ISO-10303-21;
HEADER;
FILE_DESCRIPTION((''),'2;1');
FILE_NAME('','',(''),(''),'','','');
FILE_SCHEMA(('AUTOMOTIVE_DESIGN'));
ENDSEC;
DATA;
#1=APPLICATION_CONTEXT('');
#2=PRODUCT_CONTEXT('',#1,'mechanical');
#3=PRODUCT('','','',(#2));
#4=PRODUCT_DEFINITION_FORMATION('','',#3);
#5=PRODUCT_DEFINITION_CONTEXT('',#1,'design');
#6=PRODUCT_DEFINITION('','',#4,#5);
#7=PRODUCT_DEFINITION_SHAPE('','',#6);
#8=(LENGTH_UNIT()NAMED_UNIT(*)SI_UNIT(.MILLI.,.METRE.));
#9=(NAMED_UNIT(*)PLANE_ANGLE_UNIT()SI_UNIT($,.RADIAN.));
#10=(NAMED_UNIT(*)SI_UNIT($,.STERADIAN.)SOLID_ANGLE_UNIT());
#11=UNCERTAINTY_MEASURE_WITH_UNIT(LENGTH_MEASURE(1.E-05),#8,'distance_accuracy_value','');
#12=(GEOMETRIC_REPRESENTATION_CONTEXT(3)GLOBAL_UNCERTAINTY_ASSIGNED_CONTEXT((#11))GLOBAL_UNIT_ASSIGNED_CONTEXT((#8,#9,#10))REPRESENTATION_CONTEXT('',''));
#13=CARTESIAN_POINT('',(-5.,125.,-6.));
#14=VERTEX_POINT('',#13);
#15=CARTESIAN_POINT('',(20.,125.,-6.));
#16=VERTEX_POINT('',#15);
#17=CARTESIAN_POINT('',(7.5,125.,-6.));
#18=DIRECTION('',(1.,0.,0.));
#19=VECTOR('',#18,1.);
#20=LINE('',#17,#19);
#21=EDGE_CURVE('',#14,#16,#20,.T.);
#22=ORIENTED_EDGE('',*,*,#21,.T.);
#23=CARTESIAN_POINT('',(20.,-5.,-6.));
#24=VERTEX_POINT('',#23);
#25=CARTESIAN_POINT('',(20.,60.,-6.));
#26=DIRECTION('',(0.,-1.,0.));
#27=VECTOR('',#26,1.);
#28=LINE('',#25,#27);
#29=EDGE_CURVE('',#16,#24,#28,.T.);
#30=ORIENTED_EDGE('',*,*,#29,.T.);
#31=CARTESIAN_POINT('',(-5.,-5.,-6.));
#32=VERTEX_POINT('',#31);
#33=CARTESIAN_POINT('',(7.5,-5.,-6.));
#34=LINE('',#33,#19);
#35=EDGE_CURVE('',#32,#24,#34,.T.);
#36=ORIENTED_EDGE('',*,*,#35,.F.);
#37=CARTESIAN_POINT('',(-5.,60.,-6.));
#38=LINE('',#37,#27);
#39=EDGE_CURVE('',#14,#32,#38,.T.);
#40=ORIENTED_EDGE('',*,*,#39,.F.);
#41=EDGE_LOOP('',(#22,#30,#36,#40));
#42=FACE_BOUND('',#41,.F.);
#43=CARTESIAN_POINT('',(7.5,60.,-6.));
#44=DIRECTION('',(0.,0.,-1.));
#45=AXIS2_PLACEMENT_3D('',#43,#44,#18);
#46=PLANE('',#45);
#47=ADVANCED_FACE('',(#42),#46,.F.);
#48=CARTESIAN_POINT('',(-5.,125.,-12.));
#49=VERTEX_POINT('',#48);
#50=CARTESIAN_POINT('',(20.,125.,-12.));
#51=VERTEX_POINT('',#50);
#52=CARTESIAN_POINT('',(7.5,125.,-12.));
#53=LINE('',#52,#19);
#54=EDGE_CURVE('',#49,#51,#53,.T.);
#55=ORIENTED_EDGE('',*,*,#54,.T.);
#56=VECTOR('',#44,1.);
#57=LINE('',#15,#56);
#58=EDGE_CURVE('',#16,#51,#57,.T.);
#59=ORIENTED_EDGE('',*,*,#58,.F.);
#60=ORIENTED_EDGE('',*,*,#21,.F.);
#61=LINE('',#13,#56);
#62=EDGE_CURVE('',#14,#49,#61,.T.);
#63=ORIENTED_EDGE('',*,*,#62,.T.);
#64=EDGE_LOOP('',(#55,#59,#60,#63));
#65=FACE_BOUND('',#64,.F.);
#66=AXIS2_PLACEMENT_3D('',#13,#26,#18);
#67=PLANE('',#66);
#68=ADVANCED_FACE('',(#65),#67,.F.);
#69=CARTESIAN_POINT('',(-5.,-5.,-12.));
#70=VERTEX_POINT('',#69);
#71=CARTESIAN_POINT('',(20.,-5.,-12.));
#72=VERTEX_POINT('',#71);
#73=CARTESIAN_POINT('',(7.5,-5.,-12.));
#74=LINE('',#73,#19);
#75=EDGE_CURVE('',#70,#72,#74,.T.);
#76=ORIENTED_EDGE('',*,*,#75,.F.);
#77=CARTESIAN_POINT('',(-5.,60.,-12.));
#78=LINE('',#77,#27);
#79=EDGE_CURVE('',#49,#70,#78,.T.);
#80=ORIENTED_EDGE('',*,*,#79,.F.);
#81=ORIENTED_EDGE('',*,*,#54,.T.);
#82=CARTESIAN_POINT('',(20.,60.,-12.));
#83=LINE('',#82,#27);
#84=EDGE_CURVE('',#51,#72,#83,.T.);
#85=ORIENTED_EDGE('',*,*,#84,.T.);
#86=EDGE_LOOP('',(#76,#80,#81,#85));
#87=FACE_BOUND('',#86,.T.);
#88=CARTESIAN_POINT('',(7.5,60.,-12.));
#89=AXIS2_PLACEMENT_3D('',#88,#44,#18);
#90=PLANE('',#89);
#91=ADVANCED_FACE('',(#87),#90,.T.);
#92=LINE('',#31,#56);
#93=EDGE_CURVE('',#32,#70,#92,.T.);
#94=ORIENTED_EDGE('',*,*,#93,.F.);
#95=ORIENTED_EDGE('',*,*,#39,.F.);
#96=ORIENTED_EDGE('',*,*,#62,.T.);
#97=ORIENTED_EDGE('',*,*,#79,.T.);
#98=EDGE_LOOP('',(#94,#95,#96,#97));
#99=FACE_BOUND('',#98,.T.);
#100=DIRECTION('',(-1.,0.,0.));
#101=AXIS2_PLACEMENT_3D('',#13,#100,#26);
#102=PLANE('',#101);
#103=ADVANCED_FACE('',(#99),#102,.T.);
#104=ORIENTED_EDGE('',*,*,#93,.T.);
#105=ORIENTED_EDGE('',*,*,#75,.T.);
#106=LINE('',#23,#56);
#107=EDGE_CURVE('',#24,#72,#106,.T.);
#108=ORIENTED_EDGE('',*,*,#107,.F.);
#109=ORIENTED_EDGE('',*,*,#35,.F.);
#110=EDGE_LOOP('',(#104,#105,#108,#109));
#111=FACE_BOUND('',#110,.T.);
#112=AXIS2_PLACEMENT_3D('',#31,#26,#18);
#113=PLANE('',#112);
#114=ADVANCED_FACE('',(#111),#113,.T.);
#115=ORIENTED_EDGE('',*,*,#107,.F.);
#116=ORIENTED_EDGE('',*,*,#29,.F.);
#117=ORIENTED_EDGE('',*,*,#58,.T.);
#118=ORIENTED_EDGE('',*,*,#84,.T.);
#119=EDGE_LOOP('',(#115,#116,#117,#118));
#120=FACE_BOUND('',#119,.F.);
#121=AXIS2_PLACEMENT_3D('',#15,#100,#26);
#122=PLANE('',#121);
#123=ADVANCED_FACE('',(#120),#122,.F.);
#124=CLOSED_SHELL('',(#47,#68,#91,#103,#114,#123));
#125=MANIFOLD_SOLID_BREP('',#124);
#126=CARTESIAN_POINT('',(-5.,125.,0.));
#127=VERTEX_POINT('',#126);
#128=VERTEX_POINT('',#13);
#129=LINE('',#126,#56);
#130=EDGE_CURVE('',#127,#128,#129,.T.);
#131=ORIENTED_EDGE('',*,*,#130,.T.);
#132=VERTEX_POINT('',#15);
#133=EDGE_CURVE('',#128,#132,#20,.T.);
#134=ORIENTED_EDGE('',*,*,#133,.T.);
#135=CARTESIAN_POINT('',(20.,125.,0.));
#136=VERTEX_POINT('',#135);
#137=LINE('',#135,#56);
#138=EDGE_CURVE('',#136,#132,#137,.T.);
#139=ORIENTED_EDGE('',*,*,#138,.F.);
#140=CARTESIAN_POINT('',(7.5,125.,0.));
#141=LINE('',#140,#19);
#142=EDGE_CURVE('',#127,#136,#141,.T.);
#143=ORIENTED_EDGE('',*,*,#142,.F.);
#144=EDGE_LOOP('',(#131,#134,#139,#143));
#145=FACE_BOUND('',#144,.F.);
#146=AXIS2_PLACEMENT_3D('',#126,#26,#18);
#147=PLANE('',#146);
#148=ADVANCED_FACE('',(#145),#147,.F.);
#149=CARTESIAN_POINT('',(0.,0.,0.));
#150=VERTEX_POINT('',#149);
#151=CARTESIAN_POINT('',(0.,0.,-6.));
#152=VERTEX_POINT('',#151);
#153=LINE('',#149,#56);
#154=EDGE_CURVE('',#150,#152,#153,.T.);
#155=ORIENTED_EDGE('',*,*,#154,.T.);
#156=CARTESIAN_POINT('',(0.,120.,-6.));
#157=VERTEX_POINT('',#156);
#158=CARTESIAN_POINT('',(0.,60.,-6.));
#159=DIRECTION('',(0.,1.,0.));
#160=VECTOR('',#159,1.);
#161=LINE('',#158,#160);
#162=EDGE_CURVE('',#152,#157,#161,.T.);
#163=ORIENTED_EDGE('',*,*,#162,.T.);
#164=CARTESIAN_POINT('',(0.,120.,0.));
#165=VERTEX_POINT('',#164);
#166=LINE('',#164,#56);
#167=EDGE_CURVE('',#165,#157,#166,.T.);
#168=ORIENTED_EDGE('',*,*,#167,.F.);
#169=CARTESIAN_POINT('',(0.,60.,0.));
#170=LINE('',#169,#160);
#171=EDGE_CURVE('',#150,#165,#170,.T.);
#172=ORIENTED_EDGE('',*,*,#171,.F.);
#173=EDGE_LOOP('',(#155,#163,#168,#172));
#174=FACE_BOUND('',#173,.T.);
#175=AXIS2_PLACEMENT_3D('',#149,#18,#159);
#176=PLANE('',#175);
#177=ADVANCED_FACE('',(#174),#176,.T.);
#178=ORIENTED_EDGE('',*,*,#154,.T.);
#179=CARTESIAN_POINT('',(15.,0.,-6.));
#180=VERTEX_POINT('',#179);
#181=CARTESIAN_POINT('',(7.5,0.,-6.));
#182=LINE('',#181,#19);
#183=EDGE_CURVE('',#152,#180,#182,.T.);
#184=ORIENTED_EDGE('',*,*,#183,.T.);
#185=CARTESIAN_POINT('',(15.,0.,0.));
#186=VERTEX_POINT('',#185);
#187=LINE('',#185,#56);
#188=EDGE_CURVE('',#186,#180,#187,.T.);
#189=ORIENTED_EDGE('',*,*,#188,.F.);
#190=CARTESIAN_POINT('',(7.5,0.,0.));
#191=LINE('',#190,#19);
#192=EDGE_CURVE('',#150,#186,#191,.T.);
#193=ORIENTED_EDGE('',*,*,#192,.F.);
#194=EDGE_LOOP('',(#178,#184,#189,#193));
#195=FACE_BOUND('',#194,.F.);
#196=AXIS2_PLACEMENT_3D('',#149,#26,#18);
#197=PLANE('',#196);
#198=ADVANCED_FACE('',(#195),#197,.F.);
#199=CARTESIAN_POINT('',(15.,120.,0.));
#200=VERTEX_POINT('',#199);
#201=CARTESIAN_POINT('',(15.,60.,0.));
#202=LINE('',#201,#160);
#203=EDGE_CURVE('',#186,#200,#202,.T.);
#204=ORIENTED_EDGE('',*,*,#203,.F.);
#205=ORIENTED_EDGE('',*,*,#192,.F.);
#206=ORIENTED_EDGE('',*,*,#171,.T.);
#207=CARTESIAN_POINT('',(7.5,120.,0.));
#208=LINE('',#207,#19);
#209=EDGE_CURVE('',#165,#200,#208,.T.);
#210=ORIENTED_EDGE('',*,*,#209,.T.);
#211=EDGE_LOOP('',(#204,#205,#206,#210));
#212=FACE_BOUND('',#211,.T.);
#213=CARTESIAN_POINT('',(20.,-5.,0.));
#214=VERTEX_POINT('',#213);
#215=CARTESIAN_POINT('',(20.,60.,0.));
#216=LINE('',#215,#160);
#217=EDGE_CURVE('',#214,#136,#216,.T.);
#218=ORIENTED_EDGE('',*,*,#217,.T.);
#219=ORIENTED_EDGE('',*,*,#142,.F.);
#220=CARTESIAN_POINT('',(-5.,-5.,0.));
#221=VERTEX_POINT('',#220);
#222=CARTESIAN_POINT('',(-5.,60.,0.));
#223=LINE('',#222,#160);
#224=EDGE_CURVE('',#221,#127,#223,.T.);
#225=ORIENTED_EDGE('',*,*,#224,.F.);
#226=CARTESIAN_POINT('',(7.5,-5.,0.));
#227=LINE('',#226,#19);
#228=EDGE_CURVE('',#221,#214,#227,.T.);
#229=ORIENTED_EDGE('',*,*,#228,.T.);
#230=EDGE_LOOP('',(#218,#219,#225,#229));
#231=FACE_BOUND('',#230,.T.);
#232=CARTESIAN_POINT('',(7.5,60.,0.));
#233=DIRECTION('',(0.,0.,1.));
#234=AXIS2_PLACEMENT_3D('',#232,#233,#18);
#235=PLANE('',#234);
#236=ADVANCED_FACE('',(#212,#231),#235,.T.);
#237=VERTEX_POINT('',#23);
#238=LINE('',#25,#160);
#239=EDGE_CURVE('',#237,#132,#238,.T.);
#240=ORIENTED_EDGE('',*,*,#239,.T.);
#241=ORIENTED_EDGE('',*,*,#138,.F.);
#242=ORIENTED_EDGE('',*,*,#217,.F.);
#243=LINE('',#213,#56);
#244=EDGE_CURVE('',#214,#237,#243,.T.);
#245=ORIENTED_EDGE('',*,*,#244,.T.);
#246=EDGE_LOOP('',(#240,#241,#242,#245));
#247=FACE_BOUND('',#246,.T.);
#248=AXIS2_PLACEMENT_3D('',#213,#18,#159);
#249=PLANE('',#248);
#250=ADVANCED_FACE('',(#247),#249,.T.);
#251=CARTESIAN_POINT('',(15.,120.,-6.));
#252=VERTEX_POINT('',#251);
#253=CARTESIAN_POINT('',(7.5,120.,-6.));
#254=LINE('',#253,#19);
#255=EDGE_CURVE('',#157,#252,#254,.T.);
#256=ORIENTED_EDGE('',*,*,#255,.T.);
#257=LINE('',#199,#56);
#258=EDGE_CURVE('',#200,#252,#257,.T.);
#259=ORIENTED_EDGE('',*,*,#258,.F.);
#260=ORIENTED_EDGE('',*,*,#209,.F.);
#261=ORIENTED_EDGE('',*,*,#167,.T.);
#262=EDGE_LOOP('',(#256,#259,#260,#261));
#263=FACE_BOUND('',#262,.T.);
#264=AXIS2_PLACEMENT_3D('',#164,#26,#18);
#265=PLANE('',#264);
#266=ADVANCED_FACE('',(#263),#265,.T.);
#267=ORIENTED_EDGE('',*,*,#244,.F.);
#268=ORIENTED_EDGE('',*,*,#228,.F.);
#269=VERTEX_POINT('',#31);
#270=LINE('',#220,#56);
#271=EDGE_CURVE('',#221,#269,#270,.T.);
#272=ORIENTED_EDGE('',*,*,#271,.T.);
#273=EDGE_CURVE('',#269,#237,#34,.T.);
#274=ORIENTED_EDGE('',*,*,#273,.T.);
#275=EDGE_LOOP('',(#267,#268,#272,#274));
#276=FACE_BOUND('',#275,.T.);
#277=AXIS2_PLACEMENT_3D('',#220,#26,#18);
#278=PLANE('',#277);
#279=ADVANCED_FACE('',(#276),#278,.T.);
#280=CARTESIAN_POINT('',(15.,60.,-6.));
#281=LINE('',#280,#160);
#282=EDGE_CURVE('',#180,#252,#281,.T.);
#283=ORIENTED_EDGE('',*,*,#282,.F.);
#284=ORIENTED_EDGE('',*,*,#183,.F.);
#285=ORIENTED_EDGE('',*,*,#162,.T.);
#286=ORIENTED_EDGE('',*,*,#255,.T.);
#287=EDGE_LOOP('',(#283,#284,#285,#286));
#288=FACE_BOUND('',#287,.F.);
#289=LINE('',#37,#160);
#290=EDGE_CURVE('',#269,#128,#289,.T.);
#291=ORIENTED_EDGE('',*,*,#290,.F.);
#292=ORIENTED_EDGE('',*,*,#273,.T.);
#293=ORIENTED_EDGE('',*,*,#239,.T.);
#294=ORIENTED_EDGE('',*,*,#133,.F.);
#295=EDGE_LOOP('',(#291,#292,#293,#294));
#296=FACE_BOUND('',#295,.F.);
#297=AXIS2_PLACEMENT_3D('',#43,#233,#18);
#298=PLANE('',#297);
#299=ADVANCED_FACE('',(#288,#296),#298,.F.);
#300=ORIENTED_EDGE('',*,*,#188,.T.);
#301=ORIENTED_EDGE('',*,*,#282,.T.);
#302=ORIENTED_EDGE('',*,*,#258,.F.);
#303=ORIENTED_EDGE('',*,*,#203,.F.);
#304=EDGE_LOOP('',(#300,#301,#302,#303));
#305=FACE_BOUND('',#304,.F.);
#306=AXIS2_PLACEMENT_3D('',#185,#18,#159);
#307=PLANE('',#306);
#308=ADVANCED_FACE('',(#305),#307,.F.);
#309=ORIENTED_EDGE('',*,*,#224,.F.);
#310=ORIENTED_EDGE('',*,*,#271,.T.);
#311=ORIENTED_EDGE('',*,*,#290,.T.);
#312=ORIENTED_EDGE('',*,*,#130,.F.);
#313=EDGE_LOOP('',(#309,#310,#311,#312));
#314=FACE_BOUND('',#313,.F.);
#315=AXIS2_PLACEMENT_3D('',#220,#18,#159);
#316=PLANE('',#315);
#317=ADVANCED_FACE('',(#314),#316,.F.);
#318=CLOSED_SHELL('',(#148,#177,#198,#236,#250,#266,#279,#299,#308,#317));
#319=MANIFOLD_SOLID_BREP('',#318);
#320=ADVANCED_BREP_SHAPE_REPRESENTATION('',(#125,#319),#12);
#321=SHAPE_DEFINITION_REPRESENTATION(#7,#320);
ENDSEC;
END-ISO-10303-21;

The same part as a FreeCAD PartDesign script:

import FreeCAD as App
import Part
import Sketcher

doc = App.newDocument("Part")
body = doc.addObject("PartDesign::Body", "Body")

# Sketch on XY plane
sketch1 = doc.addObject("Sketcher::SketchObject", "Sketch")
body.addObject(sketch1)
sketch1.AttachmentSupport = (doc.XY_Plane, [""])
sketch1.MapMode = "FlatFace"
sketch1.addGeometry(Part.LineSegment(App.Vector(-5, 125, 0), App.Vector(-5, -5, 0)), False)
sketch1.addGeometry(Part.LineSegment(App.Vector(-5, -5, 0), App.Vector(20, -5, 0)), False)
sketch1.addGeometry(Part.LineSegment(App.Vector(20, -5, 0), App.Vector(20, 125, 0)), False)
sketch1.addGeometry(Part.LineSegment(App.Vector(20, 125, 0), App.Vector(-5, 125, 0)), False)
sketch1.addGeometry(Part.LineSegment(App.Vector(15, 0, 0), App.Vector(0, 0, 0)), False)
sketch1.addGeometry(Part.LineSegment(App.Vector(0, 0, 0), App.Vector(0, 120, 0)), False)
sketch1.addGeometry(Part.LineSegment(App.Vector(0, 120, 0), App.Vector(15, 120, 0)), False)
sketch1.addGeometry(Part.LineSegment(App.Vector(15, 120, 0), App.Vector(15, 0, 0)), False)
sketch1.addConstraint(Sketcher.Constraint("Coincident", 0, 2, 1, 1))
sketch1.addConstraint(Sketcher.Constraint("Coincident", 1, 2, 2, 1))
sketch1.addConstraint(Sketcher.Constraint("Coincident", 2, 2, 3, 1))
sketch1.addConstraint(Sketcher.Constraint("Coincident", 3, 2, 0, 1))
sketch1.addConstraint(Sketcher.Constraint("Coincident", 4, 2, 5, 1))
sketch1.addConstraint(Sketcher.Constraint("Coincident", 5, 2, 6, 1))
sketch1.addConstraint(Sketcher.Constraint("Coincident", 6, 2, 7, 1))
sketch1.addConstraint(Sketcher.Constraint("Coincident", 7, 2, 4, 1))
sketch1.addConstraint(Sketcher.Constraint("Vertical", 0))
sketch1.addConstraint(Sketcher.Constraint("Horizontal", 1))
sketch1.addConstraint(Sketcher.Constraint("Vertical", 2))
sketch1.addConstraint(Sketcher.Constraint("Horizontal", 3))
sketch1.addConstraint(Sketcher.Constraint("Horizontal", 4))
sketch1.addConstraint(Sketcher.Constraint("Vertical", 5))
sketch1.addConstraint(Sketcher.Constraint("Horizontal", 6))
sketch1.addConstraint(Sketcher.Constraint("Vertical", 7))
sketch1.addConstraint(Sketcher.Constraint("Coincident", 4, 2, -1, 1))
sketch1.addConstraint(Sketcher.Constraint("DistanceX", 1, 1, 1, 2, 25.0))
sketch1.addConstraint(Sketcher.Constraint("DistanceX", 4, 2, 4, 1, 15.0))
sketch1.addConstraint(Sketcher.Constraint("DistanceY", 0, 2, 0, 1, 130.0))
sketch1.addConstraint(Sketcher.Constraint("DistanceY", 5, 1, 5, 2, 120.0))
sketch1.addConstraint(Sketcher.Constraint("DistanceX", 0, 2, -1, 1, 5.0))
sketch1.addConstraint(Sketcher.Constraint("DistanceY", 0, 2, -1, 1, 5.0))
pad1 = doc.addObject("PartDesign::Pad", "Pad")
body.addObject(pad1)
pad1.Profile = sketch1
pad1.Length = 6
pad1.Reversed = True
body2 = doc.addObject("PartDesign::Body", "Body001")

# Sketch on XY plane
sketch2 = doc.addObject("Sketcher::SketchObject", "Sketch001")
body2.addObject(sketch2)
sketch2.AttachmentSupport = (doc.getObject("XY_Plane001"), [""])
sketch2.MapMode = "FlatFace"
sketch2.AttachmentOffset = App.Placement(App.Vector(0, 0, -6), App.Rotation())
sketch2.addGeometry(Part.LineSegment(App.Vector(-5, -5, 0), App.Vector(-5, 125, 0)), False)
sketch2.addGeometry(Part.LineSegment(App.Vector(-5, 125, 0), App.Vector(20, 125, 0)), False)
sketch2.addGeometry(Part.LineSegment(App.Vector(20, 125, 0), App.Vector(20, -5, 0)), False)
sketch2.addGeometry(Part.LineSegment(App.Vector(20, -5, 0), App.Vector(-5, -5, 0)), False)
sketch2.addConstraint(Sketcher.Constraint("Coincident", 0, 2, 1, 1))
sketch2.addConstraint(Sketcher.Constraint("Coincident", 1, 2, 2, 1))
sketch2.addConstraint(Sketcher.Constraint("Coincident", 2, 2, 3, 1))
sketch2.addConstraint(Sketcher.Constraint("Coincident", 3, 2, 0, 1))
sketch2.addConstraint(Sketcher.Constraint("Vertical", 0))
sketch2.addConstraint(Sketcher.Constraint("Horizontal", 1))
sketch2.addConstraint(Sketcher.Constraint("Vertical", 2))
sketch2.addConstraint(Sketcher.Constraint("Horizontal", 3))
sketch2.addConstraint(Sketcher.Constraint("DistanceX", 1, 1, 1, 2, 25.0))
sketch2.addConstraint(Sketcher.Constraint("DistanceY", 0, 1, 0, 2, 130.0))
sketch2.addConstraint(Sketcher.Constraint("DistanceX", 0, 2, -1, 1, 5.0))
sketch2.addConstraint(Sketcher.Constraint("DistanceY", -1, 1, 0, 2, 125.0))
pad2 = doc.addObject("PartDesign::Pad", "Pad001")
body2.addObject(pad2)
pad2.Profile = sketch2
pad2.Length = 6
pad2.Reversed = True

doc.recompute()
